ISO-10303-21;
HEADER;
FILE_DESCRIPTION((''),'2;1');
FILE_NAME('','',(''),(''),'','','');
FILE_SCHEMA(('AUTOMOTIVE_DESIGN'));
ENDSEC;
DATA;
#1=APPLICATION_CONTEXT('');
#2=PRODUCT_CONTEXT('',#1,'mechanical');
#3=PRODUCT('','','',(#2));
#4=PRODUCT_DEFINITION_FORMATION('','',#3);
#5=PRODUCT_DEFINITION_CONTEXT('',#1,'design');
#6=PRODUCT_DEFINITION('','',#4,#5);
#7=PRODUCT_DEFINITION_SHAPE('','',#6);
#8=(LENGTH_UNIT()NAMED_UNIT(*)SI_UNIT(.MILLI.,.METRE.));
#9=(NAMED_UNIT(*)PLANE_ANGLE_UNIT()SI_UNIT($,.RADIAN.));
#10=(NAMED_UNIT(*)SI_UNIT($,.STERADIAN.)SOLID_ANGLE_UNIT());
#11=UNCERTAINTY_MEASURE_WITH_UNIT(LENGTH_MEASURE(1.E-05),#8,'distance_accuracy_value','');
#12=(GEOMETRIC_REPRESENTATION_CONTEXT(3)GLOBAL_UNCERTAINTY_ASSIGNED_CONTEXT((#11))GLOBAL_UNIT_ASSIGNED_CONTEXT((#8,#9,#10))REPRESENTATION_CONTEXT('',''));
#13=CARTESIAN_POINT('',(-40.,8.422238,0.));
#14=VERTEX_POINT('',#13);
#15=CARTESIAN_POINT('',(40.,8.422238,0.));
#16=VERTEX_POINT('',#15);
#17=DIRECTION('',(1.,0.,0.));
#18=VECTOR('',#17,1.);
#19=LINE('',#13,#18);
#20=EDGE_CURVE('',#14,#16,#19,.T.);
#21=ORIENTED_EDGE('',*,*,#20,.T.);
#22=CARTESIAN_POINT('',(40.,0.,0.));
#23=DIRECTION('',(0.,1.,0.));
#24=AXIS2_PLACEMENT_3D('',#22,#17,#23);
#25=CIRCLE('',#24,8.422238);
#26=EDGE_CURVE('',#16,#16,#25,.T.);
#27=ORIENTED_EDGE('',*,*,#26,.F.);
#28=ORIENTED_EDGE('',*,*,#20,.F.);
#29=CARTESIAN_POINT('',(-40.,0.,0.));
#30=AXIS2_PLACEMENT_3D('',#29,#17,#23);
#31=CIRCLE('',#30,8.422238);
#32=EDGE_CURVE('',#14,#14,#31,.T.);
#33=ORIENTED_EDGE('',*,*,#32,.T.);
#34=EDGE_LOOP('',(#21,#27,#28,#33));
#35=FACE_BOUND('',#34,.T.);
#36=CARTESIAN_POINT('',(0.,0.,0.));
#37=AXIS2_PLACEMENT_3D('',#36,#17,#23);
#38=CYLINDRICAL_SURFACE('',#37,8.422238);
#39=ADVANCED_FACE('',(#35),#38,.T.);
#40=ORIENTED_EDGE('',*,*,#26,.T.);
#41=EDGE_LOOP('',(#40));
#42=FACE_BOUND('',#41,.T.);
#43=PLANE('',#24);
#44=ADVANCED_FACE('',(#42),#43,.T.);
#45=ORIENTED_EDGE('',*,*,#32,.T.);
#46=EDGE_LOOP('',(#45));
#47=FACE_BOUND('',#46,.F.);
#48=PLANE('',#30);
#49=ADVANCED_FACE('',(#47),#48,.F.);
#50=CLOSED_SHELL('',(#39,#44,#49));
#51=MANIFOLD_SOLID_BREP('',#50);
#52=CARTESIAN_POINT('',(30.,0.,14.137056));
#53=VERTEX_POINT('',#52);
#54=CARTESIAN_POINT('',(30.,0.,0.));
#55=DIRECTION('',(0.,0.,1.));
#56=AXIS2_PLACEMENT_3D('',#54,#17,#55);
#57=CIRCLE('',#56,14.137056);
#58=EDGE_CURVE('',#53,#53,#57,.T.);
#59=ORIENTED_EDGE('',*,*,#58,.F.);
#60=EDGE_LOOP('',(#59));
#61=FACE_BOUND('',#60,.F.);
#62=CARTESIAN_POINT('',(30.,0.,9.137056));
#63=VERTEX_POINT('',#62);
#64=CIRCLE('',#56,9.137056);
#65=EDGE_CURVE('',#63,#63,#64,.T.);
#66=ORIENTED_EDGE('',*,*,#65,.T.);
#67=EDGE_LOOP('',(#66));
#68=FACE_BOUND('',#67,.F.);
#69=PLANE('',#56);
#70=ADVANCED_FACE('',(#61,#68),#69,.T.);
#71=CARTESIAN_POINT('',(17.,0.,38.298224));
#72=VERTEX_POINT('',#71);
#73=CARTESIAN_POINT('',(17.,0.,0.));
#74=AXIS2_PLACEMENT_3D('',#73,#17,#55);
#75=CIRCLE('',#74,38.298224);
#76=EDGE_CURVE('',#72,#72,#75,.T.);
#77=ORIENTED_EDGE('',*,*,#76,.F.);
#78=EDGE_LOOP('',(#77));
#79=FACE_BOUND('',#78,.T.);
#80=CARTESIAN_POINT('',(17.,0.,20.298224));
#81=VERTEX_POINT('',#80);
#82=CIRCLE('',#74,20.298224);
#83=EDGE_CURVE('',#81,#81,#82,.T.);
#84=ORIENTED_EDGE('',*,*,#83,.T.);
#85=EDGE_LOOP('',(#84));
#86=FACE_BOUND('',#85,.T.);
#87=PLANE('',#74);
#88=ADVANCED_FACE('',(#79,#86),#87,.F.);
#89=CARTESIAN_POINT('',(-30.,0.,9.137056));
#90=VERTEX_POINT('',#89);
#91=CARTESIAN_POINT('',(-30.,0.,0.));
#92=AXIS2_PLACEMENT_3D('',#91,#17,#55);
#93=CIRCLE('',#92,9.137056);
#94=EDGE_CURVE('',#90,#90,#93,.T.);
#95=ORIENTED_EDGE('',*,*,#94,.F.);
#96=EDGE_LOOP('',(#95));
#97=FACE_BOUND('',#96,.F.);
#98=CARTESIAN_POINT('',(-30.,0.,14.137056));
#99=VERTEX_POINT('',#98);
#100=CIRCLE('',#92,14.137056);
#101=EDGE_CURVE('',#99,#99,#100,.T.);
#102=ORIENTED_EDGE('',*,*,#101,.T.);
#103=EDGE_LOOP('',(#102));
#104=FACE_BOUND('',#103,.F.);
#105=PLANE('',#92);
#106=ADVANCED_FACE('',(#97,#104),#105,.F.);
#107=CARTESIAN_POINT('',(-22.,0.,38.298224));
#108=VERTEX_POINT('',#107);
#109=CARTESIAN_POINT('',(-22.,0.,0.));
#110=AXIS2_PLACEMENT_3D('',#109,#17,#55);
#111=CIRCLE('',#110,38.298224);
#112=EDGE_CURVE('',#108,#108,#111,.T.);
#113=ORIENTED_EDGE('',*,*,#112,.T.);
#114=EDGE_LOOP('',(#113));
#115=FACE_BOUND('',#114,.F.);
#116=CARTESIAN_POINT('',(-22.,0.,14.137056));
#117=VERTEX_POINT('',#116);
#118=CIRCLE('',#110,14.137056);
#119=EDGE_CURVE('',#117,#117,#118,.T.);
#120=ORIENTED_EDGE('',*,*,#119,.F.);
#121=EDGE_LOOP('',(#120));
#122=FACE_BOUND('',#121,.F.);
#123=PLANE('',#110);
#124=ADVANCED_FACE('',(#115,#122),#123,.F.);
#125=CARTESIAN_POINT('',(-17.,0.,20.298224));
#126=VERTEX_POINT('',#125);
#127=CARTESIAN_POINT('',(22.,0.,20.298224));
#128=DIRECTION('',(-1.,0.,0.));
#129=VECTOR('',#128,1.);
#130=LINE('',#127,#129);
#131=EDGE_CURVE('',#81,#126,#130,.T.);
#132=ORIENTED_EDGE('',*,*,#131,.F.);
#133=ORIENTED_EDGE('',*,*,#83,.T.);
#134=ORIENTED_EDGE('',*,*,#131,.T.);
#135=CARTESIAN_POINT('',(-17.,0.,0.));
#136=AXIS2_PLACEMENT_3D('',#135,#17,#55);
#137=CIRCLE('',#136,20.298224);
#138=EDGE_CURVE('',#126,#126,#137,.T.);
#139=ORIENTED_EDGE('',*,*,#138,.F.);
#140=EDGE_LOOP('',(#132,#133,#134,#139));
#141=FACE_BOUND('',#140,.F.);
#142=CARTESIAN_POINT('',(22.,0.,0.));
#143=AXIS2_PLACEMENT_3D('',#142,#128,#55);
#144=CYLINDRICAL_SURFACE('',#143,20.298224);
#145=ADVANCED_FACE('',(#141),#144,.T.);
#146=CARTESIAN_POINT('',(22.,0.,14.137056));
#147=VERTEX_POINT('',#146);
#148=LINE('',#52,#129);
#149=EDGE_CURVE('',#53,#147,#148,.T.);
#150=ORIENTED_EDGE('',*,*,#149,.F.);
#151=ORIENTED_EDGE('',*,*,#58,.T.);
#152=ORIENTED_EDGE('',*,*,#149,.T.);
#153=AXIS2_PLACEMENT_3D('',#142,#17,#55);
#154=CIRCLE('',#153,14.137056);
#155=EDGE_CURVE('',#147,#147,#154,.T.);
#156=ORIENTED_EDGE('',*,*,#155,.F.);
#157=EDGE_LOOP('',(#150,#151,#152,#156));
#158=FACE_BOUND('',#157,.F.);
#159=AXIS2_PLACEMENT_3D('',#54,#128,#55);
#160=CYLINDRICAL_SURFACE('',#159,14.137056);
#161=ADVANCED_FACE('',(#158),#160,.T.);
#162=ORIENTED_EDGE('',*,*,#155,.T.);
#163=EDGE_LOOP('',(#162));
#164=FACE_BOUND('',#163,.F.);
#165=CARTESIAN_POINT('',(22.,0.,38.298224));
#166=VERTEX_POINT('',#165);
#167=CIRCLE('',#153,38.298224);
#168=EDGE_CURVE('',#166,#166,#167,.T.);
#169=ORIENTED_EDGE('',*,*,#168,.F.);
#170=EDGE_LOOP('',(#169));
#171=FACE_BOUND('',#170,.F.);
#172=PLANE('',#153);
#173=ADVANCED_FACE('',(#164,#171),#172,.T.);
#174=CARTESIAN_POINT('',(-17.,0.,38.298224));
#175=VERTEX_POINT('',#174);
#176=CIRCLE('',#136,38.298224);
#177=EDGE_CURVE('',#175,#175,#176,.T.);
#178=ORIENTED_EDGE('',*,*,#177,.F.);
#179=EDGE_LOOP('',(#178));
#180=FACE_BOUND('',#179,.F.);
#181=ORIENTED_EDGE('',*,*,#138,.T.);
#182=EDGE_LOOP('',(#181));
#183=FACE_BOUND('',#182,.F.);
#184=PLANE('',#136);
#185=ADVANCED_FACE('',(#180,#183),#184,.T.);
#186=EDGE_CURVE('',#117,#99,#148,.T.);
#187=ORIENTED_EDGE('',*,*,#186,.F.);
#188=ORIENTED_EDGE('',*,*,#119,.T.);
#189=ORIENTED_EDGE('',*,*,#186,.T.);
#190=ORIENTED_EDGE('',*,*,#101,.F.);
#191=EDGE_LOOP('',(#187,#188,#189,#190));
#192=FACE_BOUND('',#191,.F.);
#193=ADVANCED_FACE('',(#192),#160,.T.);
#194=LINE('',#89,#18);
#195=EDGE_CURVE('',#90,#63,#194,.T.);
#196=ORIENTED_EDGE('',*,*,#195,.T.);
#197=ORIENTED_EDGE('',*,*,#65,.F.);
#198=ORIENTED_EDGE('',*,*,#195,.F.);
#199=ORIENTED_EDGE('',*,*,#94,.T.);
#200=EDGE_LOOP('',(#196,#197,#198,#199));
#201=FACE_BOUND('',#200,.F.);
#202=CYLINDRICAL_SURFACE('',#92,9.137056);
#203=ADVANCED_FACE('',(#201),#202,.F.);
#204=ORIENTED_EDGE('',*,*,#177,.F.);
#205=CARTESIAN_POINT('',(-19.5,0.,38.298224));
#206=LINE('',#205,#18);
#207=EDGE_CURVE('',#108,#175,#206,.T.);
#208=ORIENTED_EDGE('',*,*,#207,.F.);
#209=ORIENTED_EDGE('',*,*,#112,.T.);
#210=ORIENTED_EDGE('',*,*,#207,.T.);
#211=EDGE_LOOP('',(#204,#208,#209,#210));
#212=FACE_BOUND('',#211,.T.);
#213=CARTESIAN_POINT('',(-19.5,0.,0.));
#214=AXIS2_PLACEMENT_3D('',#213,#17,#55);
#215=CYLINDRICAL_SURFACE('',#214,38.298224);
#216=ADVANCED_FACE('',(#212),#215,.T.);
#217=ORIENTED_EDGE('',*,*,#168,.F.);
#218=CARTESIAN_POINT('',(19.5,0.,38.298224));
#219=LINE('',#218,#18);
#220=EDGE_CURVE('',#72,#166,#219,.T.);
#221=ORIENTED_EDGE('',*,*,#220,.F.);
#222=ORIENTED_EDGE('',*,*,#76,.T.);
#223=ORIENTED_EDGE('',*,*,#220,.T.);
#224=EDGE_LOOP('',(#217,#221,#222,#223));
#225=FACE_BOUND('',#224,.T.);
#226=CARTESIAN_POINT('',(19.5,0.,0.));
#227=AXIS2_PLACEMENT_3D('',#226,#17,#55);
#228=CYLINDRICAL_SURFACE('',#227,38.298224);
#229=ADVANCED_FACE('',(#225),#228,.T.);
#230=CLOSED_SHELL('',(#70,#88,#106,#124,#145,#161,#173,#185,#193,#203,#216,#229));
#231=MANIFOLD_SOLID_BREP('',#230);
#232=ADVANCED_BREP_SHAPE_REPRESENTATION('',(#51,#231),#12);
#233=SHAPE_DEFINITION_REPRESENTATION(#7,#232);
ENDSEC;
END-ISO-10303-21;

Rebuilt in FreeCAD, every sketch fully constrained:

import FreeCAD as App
import Part
import Sketcher

V = App.Vector
Q = App.Units.Quantity


def add_polygon(sketch, points):
    """Adds a closed chain of lines whose ends are joined by coincident constraints."""
    first, n = sketch.GeometryCount, len(points)
    for a, b in zip(points, points[1:] + points[:1]):
        sketch.addGeometry(Part.LineSegment(App.Vector(*a, 0), App.Vector(*b, 0)), False)
    for i in range(n):
        sketch.addConstraint(Sketcher.Constraint("Coincident", first + i, 2, first + (i + 1) % n, 1))

doc = App.newDocument("Part")
body = doc.addObject("PartDesign::Body", "Body")

sketch1 = body.newObject("Sketcher::SketchObject", "Sketch")
sketch1.AttachmentSupport = (doc.getObject("YZ_Plane"), [""])
sketch1.MapMode = "FlatFace"
sketch1.addGeometry(Part.Circle(V(0, 0, 0), V(0, 0, 1), 8), False)
sketch1.addConstraint(Sketcher.Constraint("Coincident", 0, 3, -1, 1))
sketch1.addConstraint(Sketcher.Constraint("Diameter", 0, Q("16.844476 mm")))
pad1 = body.newObject("PartDesign::Pad", "Pad")
pad1.Profile = sketch1
pad1.Length = 80
pad1.Midplane = True
body2 = doc.addObject("PartDesign::Body", "Body001")

sketch2 = body2.newObject("Sketcher::SketchObject", "Sketch001")
sketch2.AttachmentSupport = (doc.getObject("XZ_Plane001"), [""])
sketch2.MapMode = "FlatFace"
add_polygon(sketch2, [(-30, 14), (-30, 9), (30, 9), (30, 14), (22, 14), (22, 38), (17, 38), (17, 20), (-17, 20), (-17, 38), (-22, 38), (-22, 14)])
sketch2.addConstraint(Sketcher.Constraint("Vertical", 0))
sketch2.addConstraint(Sketcher.Constraint("Horizontal", 1))
sketch2.addConstraint(Sketcher.Constraint("Vertical", 2))
sketch2.addConstraint(Sketcher.Constraint("Horizontal", 3))
sketch2.addConstraint(Sketcher.Constraint("Vertical", 4))
sketch2.addConstraint(Sketcher.Constraint("Horizontal", 5))
sketch2.addConstraint(Sketcher.Constraint("Vertical", 6))
sketch2.addConstraint(Sketcher.Constraint("Horizontal", 7))
sketch2.addConstraint(Sketcher.Constraint("Vertical", 8))
sketch2.addConstraint(Sketcher.Constraint("Horizontal", 9))
sketch2.addConstraint(Sketcher.Constraint("Vertical", 10))
sketch2.addConstraint(Sketcher.Constraint("Horizontal", 11))
sketch2.addConstraint(Sketcher.Constraint("Symmetric", 5, 2, 8, 2, -2))
sketch2.addConstraint(Sketcher.Constraint("Symmetric", 3, 2, 10, 2, -2))
sketch2.addConstraint(Sketcher.Constraint("Equal", 3, 11))
sketch2.addConstraint(Sketcher.Constraint("Equal", 9, 0))
sketch2.addConstraint(Sketcher.Constraint("DistanceX", 1, 1, 1, 2, Q("60 mm")))
sketch2.addConstraint(Sketcher.Constraint("DistanceX", 3, 2, 3, 1, Q("8 mm")))
sketch2.addConstraint(Sketcher.Constraint("DistanceX", 5, 2, 5, 1, Q("5 mm")))
sketch2.addConstraint(Sketcher.Constraint("DistanceY", 6, 2, 6, 1, Q("18 mm")))
sketch2.addConstraint(Sketcher.Constraint("DistanceY", 4, 1, 4, 2, Q("24.161168 mm")))
sketch2.addConstraint(Sketcher.Constraint("DistanceY", -1, 1, 0, 2, Q("9.137056 mm")))
revolution = body2.newObject("PartDesign::Revolution", "Revolution")
revolution.Profile = sketch2
revolution.ReferenceAxis = (sketch2, ["H_Axis"])
revolution.Angle = 360

doc.recompute()
